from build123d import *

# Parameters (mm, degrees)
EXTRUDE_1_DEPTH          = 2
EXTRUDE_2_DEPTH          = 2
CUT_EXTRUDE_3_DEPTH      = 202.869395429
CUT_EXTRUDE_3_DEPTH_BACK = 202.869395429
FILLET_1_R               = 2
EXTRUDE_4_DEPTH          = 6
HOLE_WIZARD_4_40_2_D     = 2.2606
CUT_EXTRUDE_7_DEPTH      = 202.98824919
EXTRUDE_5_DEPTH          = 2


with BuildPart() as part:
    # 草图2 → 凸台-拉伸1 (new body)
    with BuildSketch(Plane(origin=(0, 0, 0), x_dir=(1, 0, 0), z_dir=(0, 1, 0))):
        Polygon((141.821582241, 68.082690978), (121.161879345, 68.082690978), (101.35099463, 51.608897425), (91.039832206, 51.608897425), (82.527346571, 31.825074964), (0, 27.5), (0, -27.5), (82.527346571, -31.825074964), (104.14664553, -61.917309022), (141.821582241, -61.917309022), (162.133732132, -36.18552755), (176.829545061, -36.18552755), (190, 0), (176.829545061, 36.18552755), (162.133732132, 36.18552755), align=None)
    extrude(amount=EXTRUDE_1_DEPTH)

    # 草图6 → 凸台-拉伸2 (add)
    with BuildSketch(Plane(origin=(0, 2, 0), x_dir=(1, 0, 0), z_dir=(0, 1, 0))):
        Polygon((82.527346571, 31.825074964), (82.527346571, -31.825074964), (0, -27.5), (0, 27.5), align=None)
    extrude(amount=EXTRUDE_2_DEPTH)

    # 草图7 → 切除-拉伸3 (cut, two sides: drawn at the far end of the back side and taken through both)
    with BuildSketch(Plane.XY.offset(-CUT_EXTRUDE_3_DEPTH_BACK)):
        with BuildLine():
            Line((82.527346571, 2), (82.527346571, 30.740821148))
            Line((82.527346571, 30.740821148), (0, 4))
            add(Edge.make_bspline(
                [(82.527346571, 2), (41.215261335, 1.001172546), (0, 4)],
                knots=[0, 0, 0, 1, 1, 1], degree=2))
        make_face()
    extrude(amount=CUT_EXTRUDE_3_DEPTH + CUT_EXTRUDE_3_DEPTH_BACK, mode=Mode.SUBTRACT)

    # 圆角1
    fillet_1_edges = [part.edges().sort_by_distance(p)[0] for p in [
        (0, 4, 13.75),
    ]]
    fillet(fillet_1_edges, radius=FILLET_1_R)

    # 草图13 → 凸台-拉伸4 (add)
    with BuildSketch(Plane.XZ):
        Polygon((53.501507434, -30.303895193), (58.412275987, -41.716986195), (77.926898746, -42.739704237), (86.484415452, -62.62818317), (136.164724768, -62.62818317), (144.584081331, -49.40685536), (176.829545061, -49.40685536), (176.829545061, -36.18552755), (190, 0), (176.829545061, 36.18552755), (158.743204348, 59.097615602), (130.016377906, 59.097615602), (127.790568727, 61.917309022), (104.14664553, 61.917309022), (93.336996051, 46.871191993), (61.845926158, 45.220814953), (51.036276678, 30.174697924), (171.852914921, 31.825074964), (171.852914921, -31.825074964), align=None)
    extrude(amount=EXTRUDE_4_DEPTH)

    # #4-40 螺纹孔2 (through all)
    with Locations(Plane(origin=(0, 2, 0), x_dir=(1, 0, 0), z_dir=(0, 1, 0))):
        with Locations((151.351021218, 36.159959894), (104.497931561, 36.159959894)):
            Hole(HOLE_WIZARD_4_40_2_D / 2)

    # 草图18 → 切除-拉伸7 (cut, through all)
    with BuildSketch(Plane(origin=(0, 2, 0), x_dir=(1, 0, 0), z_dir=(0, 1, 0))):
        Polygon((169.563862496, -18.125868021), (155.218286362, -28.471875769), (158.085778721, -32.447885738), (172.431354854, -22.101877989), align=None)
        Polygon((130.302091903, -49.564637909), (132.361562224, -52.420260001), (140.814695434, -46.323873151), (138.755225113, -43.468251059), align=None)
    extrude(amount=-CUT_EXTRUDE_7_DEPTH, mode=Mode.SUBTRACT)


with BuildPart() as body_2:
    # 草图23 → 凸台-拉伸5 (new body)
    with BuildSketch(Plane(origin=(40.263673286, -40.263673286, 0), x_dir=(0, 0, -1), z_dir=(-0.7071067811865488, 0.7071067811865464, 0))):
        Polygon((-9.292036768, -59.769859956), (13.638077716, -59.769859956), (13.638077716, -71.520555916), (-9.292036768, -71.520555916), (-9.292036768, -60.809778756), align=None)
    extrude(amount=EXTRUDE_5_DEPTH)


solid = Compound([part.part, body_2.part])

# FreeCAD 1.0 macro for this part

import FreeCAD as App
import Part
import Sketcher

V = App.Vector
Q = App.Units.Quantity


def edges_at(feature, points):
    """Names of the edges that pass closest to the given points."""
    edges = feature.Shape.Edges
    near = lambda p: min(range(len(edges)), key=lambda i: edges[i].distToShape(Part.Vertex(*p))[0])
    return sorted({f"Edge{near(p) + 1}" for p in points})

doc = App.newDocument("Part")
body = doc.addObject("PartDesign::Body", "Body")

# Sketch on XZ plane
sketch1 = body.newObject("Sketcher::SketchObject", "Sketch")
sketch1.AttachmentSupport = (doc.getObject("XZ_Plane"), [""])
sketch1.MapMode = "FlatFace"
sketch1.addGeometry([
    Part.LineSegment(V(142, -68, 0), V(121, -68, 0)),  # 0
    Part.LineSegment(V(121, -68, 0), V(101, -52, 0)),  # 1
    Part.LineSegment(V(101, -52, 0), V(91, -52, 0)),  # 2
    Part.LineSegment(V(91, -52, 0), V(83, -32, 0)),  # 3
    Part.LineSegment(V(83, -32, 0), V(0, -28, 0)),  # 4
    Part.LineSegment(V(0, -28, 0), V(0, 28, 0)),  # 5
    Part.LineSegment(V(0, 28, 0), V(83, 32, 0)),  # 6
    Part.LineSegment(V(83, 32, 0), V(104, 62, 0)),  # 7
    Part.LineSegment(V(104, 62, 0), V(142, 62, 0)),  # 8
    Part.LineSegment(V(142, 62, 0), V(162, 36, 0)),  # 9
    Part.LineSegment(V(162, 36, 0), V(177, 36, 0)),  # 10
    Part.LineSegment(V(177, 36, 0), V(190, 0, 0)),  # 11
    Part.LineSegment(V(190, 0, 0), V(177, -36, 0)),  # 12
    Part.LineSegment(V(177, -36, 0), V(162, -36, 0)),  # 13
    Part.LineSegment(V(162, -36, 0), V(142, -68, 0)),  # 14
], False)
sketch1.addConstraint([
    Sketcher.Constraint("Coincident", 0, 2, 1, 1),
    Sketcher.Constraint("Coincident", 1, 2, 2, 1),
    Sketcher.Constraint("Coincident", 2, 2, 3, 1),
    Sketcher.Constraint("Coincident", 3, 2, 4, 1),
    Sketcher.Constraint("Coincident", 4, 2, 5, 1),
    Sketcher.Constraint("Coincident", 5, 2, 6, 1),
    Sketcher.Constraint("Coincident", 6, 2, 7, 1),
    Sketcher.Constraint("Coincident", 7, 2, 8, 1),
    Sketcher.Constraint("Coincident", 8, 2, 9, 1),
    Sketcher.Constraint("Coincident", 9, 2, 10, 1),
    Sketcher.Constraint("Coincident", 10, 2, 11, 1),
    Sketcher.Constraint("Coincident", 11, 2, 12, 1),
    Sketcher.Constraint("Coincident", 12, 2, 13, 1),
    Sketcher.Constraint("Coincident", 13, 2, 14, 1),
    Sketcher.Constraint("Coincident", 14, 2, 0, 1),
    Sketcher.Constraint("Horizontal", 0),
    Sketcher.Constraint("Horizontal", 2),
    Sketcher.Constraint("Vertical", 5),
    Sketcher.Constraint("Horizontal", 8),
    Sketcher.Constraint("Horizontal", 10),
    Sketcher.Constraint("Horizontal", 13),
    Sketcher.Constraint("Symmetric", 4, 2, 5, 2, -1, 1),
    Sketcher.Constraint("Symmetric", 3, 2, 6, 2, -1),
    Sketcher.Constraint("Symmetric", 10, 2, 12, 2, -1),
    Sketcher.Constraint("PointOnObject", 11, 2, -1),
    Sketcher.Constraint("Vertical", 9, 2, 13, 2),
    Sketcher.Constraint("Vertical", 8, 2, 14, 2),
    Sketcher.Constraint("DistanceY", 5, 1, 5, 2, Q("55 mm")),
    Sketcher.Constraint("Angle", 4, Q("177 deg")),
    Sketcher.Constraint("Angle", 11, Q("-70 deg")),
    Sketcher.Constraint("DistanceX", -1, 1, 11, 2, Q("190 mm")),
    Sketcher.Constraint("DistanceX", 6, 2, 7, 2, Q("21.619299 mm")),
    Sketcher.Constraint("DistanceX", 7, 2, 10, 2, Q("72.6829 mm")),
    Sketcher.Constraint("Distance", 7, Q("37.05316 mm")),
    Sketcher.Constraint("Distance", 9, Q("32.78274 mm")),
    Sketcher.Constraint("DistanceX", 0, 2, 0, 1, Q("20.659703 mm")),
    Sketcher.Constraint("DistanceX", 2, 2, 2, 1, Q("10.311162 mm")),
    Sketcher.Constraint("DistanceX", 8, 1, 8, 2, Q("37.674937 mm")),
    Sketcher.Constraint("DistanceX", 10, 1, 10, 2, Q("14.695813 mm")),
    Sketcher.Constraint("DistanceY", 0, 2, -1, 1, Q("68.082691 mm")),
    Sketcher.Constraint("DistanceX", 3, 2, 1, 2, Q("18.823648 mm")),
    Sketcher.Constraint("DistanceY", 1, 2, 12, 2, Q("15.42337 mm")),
])
pad1 = body.newObject("PartDesign::Pad", "Pad")
pad1.Profile = sketch1
pad1.Length = 2
pad1.Reversed = True

# Sketch on XZ plane
sketch2 = body.newObject("Sketcher::SketchObject", "Sketch001")
sketch2.AttachmentSupport = (doc.getObject("XZ_Plane"), [""])
sketch2.MapMode = "FlatFace"
sketch2.AttachmentOffset = App.Placement(V(0, 0, -2), App.Rotation())
sketch2.addGeometry([
    Part.LineSegment(V(83, 32, 0), V(83, -32, 0)),
    Part.LineSegment(V(83, -32, 0), V(0, -28, 0)),
    Part.LineSegment(V(0, -28, 0), V(0, 28, 0)),
    Part.LineSegment(V(0, 28, 0), V(83, 32, 0)),
], False)
sketch2.addConstraint([
    Sketcher.Constraint("Coincident", 0, 2, 1, 1),
    Sketcher.Constraint("Coincident", 1, 2, 2, 1),
    Sketcher.Constraint("Coincident", 2, 2, 3, 1),
    Sketcher.Constraint("Coincident", 3, 2, 0, 1),
    Sketcher.Constraint("Vertical", 0),
    Sketcher.Constraint("Vertical", 2),
    Sketcher.Constraint("Symmetric", 1, 2, 2, 2, -1, 1),
    Sketcher.Constraint("Equal", 1, 3),
    Sketcher.Constraint("DistanceY", 2, 1, 2, 2, Q("55 mm")),
    Sketcher.Constraint("Angle", 1, Q("177 deg")),
    Sketcher.Constraint("DistanceY", 0, 2, 0, 1, Q("63.65015 mm")),
])
pad2 = body.newObject("PartDesign::Pad", "Pad001")
pad2.Profile = sketch2
pad2.Length = 2
pad2.Reversed = True

# Sketch on XY plane
sketch3 = body.newObject("Sketcher::SketchObject", "Sketch002")
sketch3.AttachmentSupport = (doc.getObject("XY_Plane"), [""])
sketch3.MapMode = "FlatFace"
sketch3.addGeometry([
    Part.LineSegment(V(82.527347, 2, 0), V(82.527347, 30.740821, 0)),
    Part.LineSegment(V(82.527347, 30.740821, 0), V(0, 4, 0)),
    Part.BSplineCurve([V(82.527347, 2, 0), V(41.215261, 1.001173, 0), V(0, 4, 0)], [3, 3], [0, 1], False, 2, [1, 1, 1], False),
], False)
sketch3.addConstraint([
    Sketcher.Constraint("Block", 2),
    Sketcher.Constraint("Coincident", 0, 2, 1, 1),
    Sketcher.Constraint("Coincident", 1, 2, 2, 2),
    Sketcher.Constraint("Coincident", 2, 1, 0, 1),
    Sketcher.Constraint("Vertical", 0),
    Sketcher.Constraint("DistanceY", 0, 1, 0, 2, Q("28.740821 mm")),
])
pocket1 = body.newObject("PartDesign::Pocket", "Pocket")
pocket1.Profile = sketch3
pocket1.Type = "ThroughAll"
pocket1.Midplane = True
doc.recompute()

fillet = body.newObject("PartDesign::Fillet", "Fillet")
fillet.Base = (pocket1, edges_at(pocket1, [(0, 4, 0)]))
fillet.Radius = 2

# Sketch on XZ plane
sketch4 = body.newObject("Sketcher::SketchObject", "Sketch003")
sketch4.AttachmentSupport = (doc.getObject("XZ_Plane"), [""])
sketch4.MapMode = "FlatFace"
sketch4.addGeometry([
    Part.LineSegment(V(53.501507, -30.303895, 0), V(58.412276, -41.716986, 0)),  # 0
    Part.LineSegment(V(58.412276, -41.716986, 0), V(77.926899, -42.739704, 0)),  # 1
    Part.LineSegment(V(77.926899, -42.739704, 0), V(86.484415, -62.628183, 0)),  # 2
    Part.LineSegment(V(86.484415, -62.628183, 0), V(136.164725, -62.628183, 0)),  # 3
    Part.LineSegment(V(136.164725, -62.628183, 0), V(144.584081, -49.406855, 0)),  # 4
    Part.LineSegment(V(144.584081, -49.406855, 0), V(176.829545, -49.406855, 0)),  # 5
    Part.LineSegment(V(176.829545, -49.406855, 0), V(176.829545, -36.185528, 0)),  # 6
    Part.LineSegment(V(176.829545, -36.185528, 0), V(190, 0, 0)),  # 7
    Part.LineSegment(V(190, 0, 0), V(176.829545, 36.185528, 0)),  # 8
    Part.LineSegment(V(176.829545, 36.185528, 0), V(158.743204, 59.097616, 0)),  # 9
    Part.LineSegment(V(158.743204, 59.097616, 0), V(130.016378, 59.097616, 0)),  # 10
    Part.LineSegment(V(130.016378, 59.097616, 0), V(127.790569, 61.917309, 0)),  # 11
    Part.LineSegment(V(127.790569, 61.917309, 0), V(104.146646, 61.917309, 0)),  # 12
    Part.LineSegment(V(104.146646, 61.917309, 0), V(93.336996, 46.871192, 0)),  # 13
    Part.LineSegment(V(93.336996, 46.871192, 0), V(61.845926, 45.220815, 0)),  # 14
    Part.LineSegment(V(61.845926, 45.220815, 0), V(51.036277, 30.174698, 0)),  # 15
    Part.LineSegment(V(51.036277, 30.174698, 0), V(171.852915, 31.825075, 0)),  # 16
    Part.LineSegment(V(171.852915, 31.825075, 0), V(171.852915, -31.825075, 0)),  # 17
    Part.LineSegment(V(171.852915, -31.825075, 0), V(53.501507, -30.303895, 0)),  # 18
], False)
sketch4.addConstraint([
    Sketcher.Constraint("Coincident", 0, 2, 1, 1),
    Sketcher.Constraint("Coincident", 1, 2, 2, 1),
    Sketcher.Constraint("Coincident", 2, 2, 3, 1),
    Sketcher.Constraint("Coincident", 3, 2, 4, 1),
    Sketcher.Constraint("Coincident", 4, 2, 5, 1),
    Sketcher.Constraint("Coincident", 5, 2, 6, 1),
    Sketcher.Constraint("Coincident", 6, 2, 7, 1),
    Sketcher.Constraint("Coincident", 7, 2, 8, 1),
    Sketcher.Constraint("Coincident", 8, 2, 9, 1),
    Sketcher.Constraint("Coincident", 9, 2, 10, 1),
    Sketcher.Constraint("Coincident", 10, 2, 11, 1),
    Sketcher.Constraint("Coincident", 11, 2, 12, 1),
    Sketcher.Constraint("Coincident", 12, 2, 13, 1),
    Sketcher.Constraint("Coincident", 13, 2, 14, 1),
    Sketcher.Constraint("Coincident", 14, 2, 15, 1),
    Sketcher.Constraint("Coincident", 15, 2, 16, 1),
    Sketcher.Constraint("Coincident", 16, 2, 17, 1),
    Sketcher.Constraint("Coincident", 17, 2, 18, 1),
    Sketcher.Constraint("Coincident", 18, 2, 0, 1),
    Sketcher.Constraint("Horizontal", 3),
    Sketcher.Constraint("Horizontal", 5),
    Sketcher.Constraint("Vertical", 6),
    Sketcher.Constraint("Horizontal", 10),
    Sketcher.Constraint("Horizontal", 12),
    Sketcher.Constraint("Vertical", 17),
    Sketcher.Constraint("PointOnObject", 7, 2, -1),
    Sketcher.Constraint("DistanceX", -1, 1, 7, 2, Q("190 mm")),
    Sketcher.Constraint("DistanceX", 15, 2, 0, 2, Q("7.375999 mm")),
    Sketcher.Constraint("Distance", 9, Q("29.190401 mm")),
    Sketcher.Constraint("DistanceX", 3, 1, 3, 2, Q("49.680309 mm")),
    Sketcher.Constraint("DistanceY", 17, 2, 17, 1, Q("63.65015 mm")),
    Sketcher.Constraint("DistanceX", -1, 1, 1, 2, Q("77.926899 mm")),
    Sketcher.Constraint("DistanceX", 12, 2, 8, 2, Q("72.6829 mm")),
    Sketcher.Constraint("DistanceY", 14, 2, 10, 2, Q("13.876801 mm")),
    Sketcher.Constraint("DistanceY", 0, 2, 14, 2, Q("86.937801 mm")),
    Sketcher.Constraint("Distance", 2, Q("21.65139 mm")),
    Sketcher.Constraint("Distance", 11, Q("3.592339 mm")),
    Sketcher.Constraint("Distance", 13, Q("18.52658 mm")),
    Sketcher.Constraint("Distance", 15, Q("18.52658 mm")),
    Sketcher.Constraint("Distance", 16, Q("120.82791 mm")),
    Sketcher.Constraint("DistanceX", 5, 1, 5, 2, Q("32.245464 mm")),
    Sketcher.Constraint("DistanceX", 10, 2, 10, 1, Q("28.726826 mm")),
    Sketcher.Constraint("DistanceX", 12, 2, 12, 1, Q("23.643923 mm")),
    Sketcher.Constraint("DistanceY", 6, 1, 6, 2, Q("13.221328 mm")),
    Sketcher.Constraint("DistanceX", -1, 1, 4, 2, Q("144.584081 mm")),
    Sketcher.Constraint("DistanceX", -1, 1, 11, 2, Q("127.790569 mm")),
    Sketcher.Constraint("DistanceY", -1, 1, 11, 2, Q("61.917309 mm")),
    Sketcher.Constraint("DistanceY", -1, 1, 13, 2, Q("46.871192 mm")),
    Sketcher.Constraint("DistanceY", 1, 2, 0, 2, Q("1.022718 mm")),
    Sketcher.Constraint("DistanceY", 2, 2, 1, 2, Q("19.888479 mm")),
    Sketcher.Constraint("DistanceX", 0, 2, 2, 2, Q("28.072139 mm")),
    Sketcher.Constraint("DistanceY", 4, 2, 1, 2, Q("6.667151 mm")),
    Sketcher.Constraint("DistanceY", 3, 2, 8, 2, Q("98.813711 mm")),
    Sketcher.Constraint("DistanceX", 14, 2, 13, 2, Q("31.49107 mm")),
    Sketcher.Constraint("DistanceX", 16, 2, 8, 2, Q("4.97663 mm")),
    Sketcher.Constraint("DistanceX", 18, 2, 0, 2, Q("4.910769 mm")),
    Sketcher.Constraint("DistanceY", 0, 2, 18, 2, Q("11.413091 mm")),
])
pad3 = body.newObject("PartDesign::Pad", "Pad002")
pad3.Profile = sketch4
pad3.Length = 6

# Sketch on XZ plane
sketch5 = body.newObject("Sketcher::SketchObject", "Sketch004")
sketch5.AttachmentSupport = (doc.getObject("XZ_Plane"), [""])
sketch5.MapMode = "FlatFace"
sketch5.AttachmentOffset = App.Placement(V(0, 0, -2), App.Rotation())
sketch5.addGeometry([
    Part.Circle(V(151.4, -36.2, 0), V(0, 0, 1), 1.1),
    Part.Circle(V(104.5, -36.2, 0), V(0, 0, 1), 1.1),
], False)
sketch5.addConstraint([
    Sketcher.Constraint("Equal", 0, 1),
    Sketcher.Constraint("Horizontal", 0, 3, 1, 3),
    Sketcher.Constraint("Diameter", 0, Q("2.2606 mm")),
    Sketcher.Constraint("DistanceX", -1, 1, 0, 3, Q("151.351021 mm")),
    Sketcher.Constraint("DistanceY", 0, 3, -1, 1, Q("36.15996 mm")),
    Sketcher.Constraint("DistanceX", -1, 1, 1, 3, Q("104.497932 mm")),
])
doc.recompute()
hole = body.newObject("PartDesign::Hole", "Hole")
hole.Profile = sketch5
hole.ThreadType = "None"
hole.Diameter = 2.2606
hole.DepthType = "ThroughAll"
hole.Reversed = True

# Sketch on XZ plane
sketch6 = body.newObject("Sketcher::SketchObject", "Sketch005")
sketch6.AttachmentSupport = (doc.getObject("XZ_Plane"), [""])
sketch6.MapMode = "FlatFace"
sketch6.AttachmentOffset = App.Placement(V(0, 0, -2), App.Rotation())
sketch6.addGeometry([
    Part.LineSegment(V(169.6, 18.1, 0), V(155.2, 28.5, 0)),  # 0
    Part.LineSegment(V(155.2, 28.5, 0), V(158.1, 32.4, 0)),  # 1
    Part.LineSegment(V(158.1, 32.4, 0), V(172.4, 22.1, 0)),  # 2
    Part.LineSegment(V(172.4, 22.1, 0), V(169.6, 18.1, 0)),  # 3
    Part.LineSegment(V(130.3, 49.6, 0), V(132.4, 52.4, 0)),  # 4
    Part.LineSegment(V(132.4, 52.4, 0), V(140.8, 46.3, 0)),  # 5
    Part.LineSegment(V(140.8, 46.3, 0), V(138.8, 43.5, 0)),  # 6
    Part.LineSegment(V(138.8, 43.5, 0), V(130.3, 49.6, 0)),  # 7
], False)
sketch6.addConstraint([
    Sketcher.Constraint("Coincident", 0, 2, 1, 1),
    Sketcher.Constraint("Coincident", 1, 2, 2, 1),
    Sketcher.Constraint("Coincident", 2, 2, 3, 1),
    Sketcher.Constraint("Coincident", 3, 2, 0, 1),
    Sketcher.Constraint("Coincident", 4, 2, 5, 1),
    Sketcher.Constraint("Coincident", 5, 2, 6, 1),
    Sketcher.Constraint("Coincident", 6, 2, 7, 1),
    Sketcher.Constraint("Coincident", 7, 2, 4, 1),
    Sketcher.Constraint("Perpendicular", 0, 1),
    Sketcher.Constraint("Perpendicular", 1, 2),
    Sketcher.Constraint("Perpendicular", 2, 3),
    Sketcher.Constraint("Parallel", 3, 4),
    Sketcher.Constraint("Perpendicular", 4, 5),
    Sketcher.Constraint("Perpendicular", 5, 6),
    Sketcher.Constraint("Perpendicular", 6, 7),
    Sketcher.Constraint("DistanceX", 4, 2, 3, 2, Q("37.2023 mm")),
    Sketcher.Constraint("Distance", 1, Q("4.902159 mm")),
    Sketcher.Constraint("Distance", 5, Q("10.422159 mm")),
    Sketcher.Constraint("DistanceX", -1, 1, 1, 2, Q("158.085779 mm")),
    Sketcher.Constraint("DistanceY", -1, 1, 3, 2, Q("18.125868 mm")),
    Sketcher.Constraint("DistanceY", -1, 1, 4, 2, Q("52.42026 mm")),
    Sketcher.Constraint("DistanceY", -1, 1, 6, 2, Q("43.468251 mm")),
    Sketcher.Constraint("DistanceX", -1, 1, 7, 2, Q("130.302092 mm")),
    Sketcher.Constraint("DistanceY", 0, 2, 1, 2, Q("3.97601 mm")),
])
pocket2 = body.newObject("PartDesign::Pocket", "Pocket001")
pocket2.Profile = sketch6
pocket2.Type = "ThroughAll"
pocket2.Reversed = True
body2 = doc.addObject("PartDesign::Body", "Body001")

# Sketch on an angled plane
sketch7 = body2.newObject("Sketcher::SketchObject", "Sketch006")
sketch7.Placement = App.Placement(V(40.263673, -40.263673, 0), App.Rotation(V(0, 0, -1), V(-0.707106781, -0.707106781, 0), V(-0.707106781, 0.707106781, 0), "ZXY"))
sketch7.addGeometry([
    Part.LineSegment(V(14, -60, 0), V(-9, -60, 0)),
    Part.LineSegment(V(-9, -60, 0), V(-9, -72, 0)),
    Part.LineSegment(V(-9, -72, 0), V(14, -72, 0)),
    Part.LineSegment(V(14, -72, 0), V(14, -60, 0)),
], False)
sketch7.addConstraint([
    Sketcher.Constraint("Coincident", 0, 2, 1, 1),
    Sketcher.Constraint("Coincident", 1, 2, 2, 1),
    Sketcher.Constraint("Coincident", 2, 2, 3, 1),
    Sketcher.Constraint("Coincident", 3, 2, 0, 1),
    Sketcher.Constraint("Horizontal", 0),
    Sketcher.Constraint("Vertical", 1),
    Sketcher.Constraint("Horizontal", 2),
    Sketcher.Constraint("Vertical", 3),
    Sketcher.Constraint("DistanceX", 0, 2, 0, 1, Q("22.930114 mm")),
    Sketcher.Constraint("DistanceY", 1, 2, 1, 1, Q("11.750696 mm")),
    Sketcher.Constraint("DistanceY", 0, 2, -1, 1, Q("59.76986 mm")),
    Sketcher.Constraint("DistanceX", 0, 2, -1, 1, Q("9.292037 mm")),
])
pad4 = body2.newObject("PartDesign::Pad", "Pad003")
pad4.Profile = sketch7
pad4.Length = 2

doc.recompute()
